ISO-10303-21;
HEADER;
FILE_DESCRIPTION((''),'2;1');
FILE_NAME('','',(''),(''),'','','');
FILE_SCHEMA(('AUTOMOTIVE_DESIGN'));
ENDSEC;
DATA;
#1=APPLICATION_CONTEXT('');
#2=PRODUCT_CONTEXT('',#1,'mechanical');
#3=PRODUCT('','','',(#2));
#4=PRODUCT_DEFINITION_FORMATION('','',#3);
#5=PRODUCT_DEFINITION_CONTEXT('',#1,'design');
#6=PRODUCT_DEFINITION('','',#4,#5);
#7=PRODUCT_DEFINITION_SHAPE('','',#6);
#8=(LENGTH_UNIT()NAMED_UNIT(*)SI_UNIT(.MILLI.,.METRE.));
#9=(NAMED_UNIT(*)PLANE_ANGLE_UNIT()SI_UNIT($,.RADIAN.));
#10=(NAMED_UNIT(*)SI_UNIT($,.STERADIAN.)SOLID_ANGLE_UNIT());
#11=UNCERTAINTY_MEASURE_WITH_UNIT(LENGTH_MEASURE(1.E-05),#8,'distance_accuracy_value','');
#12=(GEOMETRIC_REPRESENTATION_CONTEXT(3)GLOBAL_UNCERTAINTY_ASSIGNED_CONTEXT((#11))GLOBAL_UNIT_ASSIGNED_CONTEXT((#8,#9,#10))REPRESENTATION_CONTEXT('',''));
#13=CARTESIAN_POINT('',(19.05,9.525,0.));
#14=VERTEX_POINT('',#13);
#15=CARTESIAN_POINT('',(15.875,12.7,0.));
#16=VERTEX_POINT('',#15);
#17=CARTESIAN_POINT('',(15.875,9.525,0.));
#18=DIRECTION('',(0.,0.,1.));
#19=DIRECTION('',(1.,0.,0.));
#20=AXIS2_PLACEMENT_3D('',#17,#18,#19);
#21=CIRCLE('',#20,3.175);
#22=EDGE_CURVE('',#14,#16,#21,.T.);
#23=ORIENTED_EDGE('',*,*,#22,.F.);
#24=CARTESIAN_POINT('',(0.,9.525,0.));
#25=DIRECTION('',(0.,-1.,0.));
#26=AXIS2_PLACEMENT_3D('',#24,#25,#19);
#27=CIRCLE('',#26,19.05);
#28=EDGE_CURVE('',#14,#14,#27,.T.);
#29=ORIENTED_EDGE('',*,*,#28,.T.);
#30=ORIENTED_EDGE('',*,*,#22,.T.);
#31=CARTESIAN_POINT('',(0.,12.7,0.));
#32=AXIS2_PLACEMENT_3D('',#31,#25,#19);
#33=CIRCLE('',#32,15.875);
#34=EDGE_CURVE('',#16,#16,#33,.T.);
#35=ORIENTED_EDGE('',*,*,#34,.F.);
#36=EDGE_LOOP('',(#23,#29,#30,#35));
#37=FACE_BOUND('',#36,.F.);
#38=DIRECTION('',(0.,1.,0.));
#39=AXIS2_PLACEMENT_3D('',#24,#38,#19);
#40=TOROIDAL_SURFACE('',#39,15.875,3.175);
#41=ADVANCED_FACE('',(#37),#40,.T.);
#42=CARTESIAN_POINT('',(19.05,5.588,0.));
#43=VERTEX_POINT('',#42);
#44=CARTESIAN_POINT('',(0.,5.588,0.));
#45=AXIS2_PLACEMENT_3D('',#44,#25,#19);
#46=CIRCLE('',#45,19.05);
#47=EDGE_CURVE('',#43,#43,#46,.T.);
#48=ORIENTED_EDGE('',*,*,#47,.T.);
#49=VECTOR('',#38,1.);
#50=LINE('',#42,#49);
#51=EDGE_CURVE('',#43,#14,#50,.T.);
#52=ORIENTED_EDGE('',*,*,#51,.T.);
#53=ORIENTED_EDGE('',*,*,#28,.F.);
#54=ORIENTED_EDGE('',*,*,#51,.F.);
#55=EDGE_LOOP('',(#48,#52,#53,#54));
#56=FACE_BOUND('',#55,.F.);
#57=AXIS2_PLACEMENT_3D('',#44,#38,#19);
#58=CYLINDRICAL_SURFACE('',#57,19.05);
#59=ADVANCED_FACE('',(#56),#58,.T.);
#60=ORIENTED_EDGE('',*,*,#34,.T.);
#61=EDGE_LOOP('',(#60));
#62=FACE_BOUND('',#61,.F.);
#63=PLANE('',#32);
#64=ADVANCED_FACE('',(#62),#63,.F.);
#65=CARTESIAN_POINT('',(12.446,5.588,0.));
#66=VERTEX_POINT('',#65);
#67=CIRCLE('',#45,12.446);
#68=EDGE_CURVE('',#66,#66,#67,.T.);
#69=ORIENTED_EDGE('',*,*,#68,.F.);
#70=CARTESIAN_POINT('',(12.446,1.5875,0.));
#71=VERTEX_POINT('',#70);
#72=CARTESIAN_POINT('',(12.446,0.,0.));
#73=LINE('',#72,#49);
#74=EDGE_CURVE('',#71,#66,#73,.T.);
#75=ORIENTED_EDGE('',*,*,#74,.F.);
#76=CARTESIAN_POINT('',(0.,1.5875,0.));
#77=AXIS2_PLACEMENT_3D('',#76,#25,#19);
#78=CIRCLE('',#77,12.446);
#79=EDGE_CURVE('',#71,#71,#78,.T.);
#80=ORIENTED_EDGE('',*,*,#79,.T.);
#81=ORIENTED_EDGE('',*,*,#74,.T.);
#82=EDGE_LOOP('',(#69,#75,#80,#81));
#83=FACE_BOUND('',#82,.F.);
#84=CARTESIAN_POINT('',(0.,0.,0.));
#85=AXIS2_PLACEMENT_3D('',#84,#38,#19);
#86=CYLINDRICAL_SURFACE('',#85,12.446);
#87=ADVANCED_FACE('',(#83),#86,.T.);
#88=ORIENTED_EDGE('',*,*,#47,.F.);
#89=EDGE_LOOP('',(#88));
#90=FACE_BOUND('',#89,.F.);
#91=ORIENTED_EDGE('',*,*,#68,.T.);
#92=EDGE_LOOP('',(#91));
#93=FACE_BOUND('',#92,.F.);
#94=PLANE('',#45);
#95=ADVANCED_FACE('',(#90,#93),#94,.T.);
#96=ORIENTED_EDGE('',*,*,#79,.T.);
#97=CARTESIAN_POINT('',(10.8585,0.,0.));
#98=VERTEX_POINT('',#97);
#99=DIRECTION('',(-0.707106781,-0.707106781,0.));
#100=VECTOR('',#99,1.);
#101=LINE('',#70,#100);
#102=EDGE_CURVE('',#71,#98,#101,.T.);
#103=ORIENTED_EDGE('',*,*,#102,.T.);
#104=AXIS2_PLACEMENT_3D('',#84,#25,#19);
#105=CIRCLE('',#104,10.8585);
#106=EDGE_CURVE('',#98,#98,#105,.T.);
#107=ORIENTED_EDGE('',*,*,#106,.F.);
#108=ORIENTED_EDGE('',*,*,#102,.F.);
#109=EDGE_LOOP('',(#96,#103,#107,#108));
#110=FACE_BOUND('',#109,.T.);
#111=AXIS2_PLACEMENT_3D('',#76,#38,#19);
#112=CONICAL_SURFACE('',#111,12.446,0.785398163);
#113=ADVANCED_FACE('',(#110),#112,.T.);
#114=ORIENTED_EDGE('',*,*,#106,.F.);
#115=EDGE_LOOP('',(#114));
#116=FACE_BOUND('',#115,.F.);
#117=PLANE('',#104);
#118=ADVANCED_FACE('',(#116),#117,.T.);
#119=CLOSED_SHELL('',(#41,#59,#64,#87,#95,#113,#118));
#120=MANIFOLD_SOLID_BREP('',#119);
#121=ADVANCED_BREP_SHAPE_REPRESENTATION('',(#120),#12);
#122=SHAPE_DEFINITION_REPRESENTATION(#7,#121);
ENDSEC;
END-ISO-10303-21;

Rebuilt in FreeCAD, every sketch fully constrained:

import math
import FreeCAD as App
import Part
import Sketcher

V = App.Vector
Q = App.Units.Quantity


def edges_at(feature, points):
    """Names of the edges that pass closest to the given points."""
    edges = feature.Shape.Edges
    near = lambda p: min(range(len(edges)), key=lambda i: edges[i].distToShape(Part.Vertex(*p))[0])
    return sorted({f"Edge{near(p) + 1}" for p in points})

doc = App.newDocument("Part")
body = doc.addObject("PartDesign::Body", "Body")

# Sketch on XY plane
sketch1 = body.newObject("Sketcher::SketchObject", "Sketch")
sketch1.AttachmentSupport = (doc.getObject("XY_Plane"), [""])
sketch1.MapMode = "FlatFace"
sketch1.addGeometry(Part.LineSegment(V(0, 0, 0), V(12.4, 0, 0)), False)
sketch1.addGeometry(Part.LineSegment(V(12.4, 0, 0), V(12.4, 5.6, 0)), False)
sketch1.addGeometry(Part.LineSegment(V(12.4, 5.6, 0), V(19.1, 5.6, 0)), False)
sketch1.addGeometry(Part.LineSegment(V(19.1, 5.6, 0), V(19.1, 9.5, 0)), False)
sketch1.addGeometry(Part.ArcOfCircle(Part.Circle(V(15.9, 9.5, 0), V(0, 0, 1), 3.2), math.radians(0), math.radians(90)), False)
sketch1.addGeometry(Part.LineSegment(V(15.9, 12.7, 0), V(0, 12.7, 0)), False)
sketch1.addGeometry(Part.LineSegment(V(0, 12.7, 0), V(0, 0, 0)), False)
sketch1.addConstraint(Sketcher.Constraint("Coincident", 0, 2, 1, 1))
sketch1.addConstraint(Sketcher.Constraint("Coincident", 1, 2, 2, 1))
sketch1.addConstraint(Sketcher.Constraint("Coincident", 2, 2, 3, 1))
sketch1.addConstraint(Sketcher.Constraint("Tangent", 3, 2, 4, 1))
sketch1.addConstraint(Sketcher.Constraint("Tangent", 4, 2, 5, 1))
sketch1.addConstraint(Sketcher.Constraint("Coincident", 5, 2, 6, 1))
sketch1.addConstraint(Sketcher.Constraint("Coincident", 6, 2, 0, 1))
sketch1.addConstraint(Sketcher.Constraint("Horizontal", 0))
sketch1.addConstraint(Sketcher.Constraint("Vertical", 1))
sketch1.addConstraint(Sketcher.Constraint("Horizontal", 2))
sketch1.addConstraint(Sketcher.Constraint("Vertical", 3))
sketch1.addConstraint(Sketcher.Constraint("Horizontal", 5))
sketch1.addConstraint(Sketcher.Constraint("Vertical", 6))
sketch1.addConstraint(Sketcher.Constraint("Coincident", 6, 2, -1, 1))
sketch1.addConstraint(Sketcher.Constraint("DistanceY", 6, 2, 6, 1, Q("0.5 in")))
sketch1.addConstraint(Sketcher.Constraint("Radius", 4, Q("0.125 in")))
sketch1.addConstraint(Sketcher.Constraint("DistanceX", 0, 1, 0, 2, Q("0.49 in")))
sketch1.addConstraint(Sketcher.Constraint("DistanceY", 1, 1, 1, 2, Q("0.22 in")))
sketch1.addConstraint(Sketcher.Constraint("DistanceX", -1, 1, 2, 2, Q("0.75 in")))
revolution = body.newObject("PartDesign::Revolution", "Revolution")
revolution.Profile = sketch1
revolution.ReferenceAxis = (sketch1, ["V_Axis"])
revolution.Angle = 360
doc.recompute()

chamfer = body.newObject("PartDesign::Chamfer", "Chamfer")
chamfer.Base = (revolution, edges_at(revolution, [(-12.446, 0, 0)]))
chamfer.Size = Q("0.0625 in")

doc.recompute()
